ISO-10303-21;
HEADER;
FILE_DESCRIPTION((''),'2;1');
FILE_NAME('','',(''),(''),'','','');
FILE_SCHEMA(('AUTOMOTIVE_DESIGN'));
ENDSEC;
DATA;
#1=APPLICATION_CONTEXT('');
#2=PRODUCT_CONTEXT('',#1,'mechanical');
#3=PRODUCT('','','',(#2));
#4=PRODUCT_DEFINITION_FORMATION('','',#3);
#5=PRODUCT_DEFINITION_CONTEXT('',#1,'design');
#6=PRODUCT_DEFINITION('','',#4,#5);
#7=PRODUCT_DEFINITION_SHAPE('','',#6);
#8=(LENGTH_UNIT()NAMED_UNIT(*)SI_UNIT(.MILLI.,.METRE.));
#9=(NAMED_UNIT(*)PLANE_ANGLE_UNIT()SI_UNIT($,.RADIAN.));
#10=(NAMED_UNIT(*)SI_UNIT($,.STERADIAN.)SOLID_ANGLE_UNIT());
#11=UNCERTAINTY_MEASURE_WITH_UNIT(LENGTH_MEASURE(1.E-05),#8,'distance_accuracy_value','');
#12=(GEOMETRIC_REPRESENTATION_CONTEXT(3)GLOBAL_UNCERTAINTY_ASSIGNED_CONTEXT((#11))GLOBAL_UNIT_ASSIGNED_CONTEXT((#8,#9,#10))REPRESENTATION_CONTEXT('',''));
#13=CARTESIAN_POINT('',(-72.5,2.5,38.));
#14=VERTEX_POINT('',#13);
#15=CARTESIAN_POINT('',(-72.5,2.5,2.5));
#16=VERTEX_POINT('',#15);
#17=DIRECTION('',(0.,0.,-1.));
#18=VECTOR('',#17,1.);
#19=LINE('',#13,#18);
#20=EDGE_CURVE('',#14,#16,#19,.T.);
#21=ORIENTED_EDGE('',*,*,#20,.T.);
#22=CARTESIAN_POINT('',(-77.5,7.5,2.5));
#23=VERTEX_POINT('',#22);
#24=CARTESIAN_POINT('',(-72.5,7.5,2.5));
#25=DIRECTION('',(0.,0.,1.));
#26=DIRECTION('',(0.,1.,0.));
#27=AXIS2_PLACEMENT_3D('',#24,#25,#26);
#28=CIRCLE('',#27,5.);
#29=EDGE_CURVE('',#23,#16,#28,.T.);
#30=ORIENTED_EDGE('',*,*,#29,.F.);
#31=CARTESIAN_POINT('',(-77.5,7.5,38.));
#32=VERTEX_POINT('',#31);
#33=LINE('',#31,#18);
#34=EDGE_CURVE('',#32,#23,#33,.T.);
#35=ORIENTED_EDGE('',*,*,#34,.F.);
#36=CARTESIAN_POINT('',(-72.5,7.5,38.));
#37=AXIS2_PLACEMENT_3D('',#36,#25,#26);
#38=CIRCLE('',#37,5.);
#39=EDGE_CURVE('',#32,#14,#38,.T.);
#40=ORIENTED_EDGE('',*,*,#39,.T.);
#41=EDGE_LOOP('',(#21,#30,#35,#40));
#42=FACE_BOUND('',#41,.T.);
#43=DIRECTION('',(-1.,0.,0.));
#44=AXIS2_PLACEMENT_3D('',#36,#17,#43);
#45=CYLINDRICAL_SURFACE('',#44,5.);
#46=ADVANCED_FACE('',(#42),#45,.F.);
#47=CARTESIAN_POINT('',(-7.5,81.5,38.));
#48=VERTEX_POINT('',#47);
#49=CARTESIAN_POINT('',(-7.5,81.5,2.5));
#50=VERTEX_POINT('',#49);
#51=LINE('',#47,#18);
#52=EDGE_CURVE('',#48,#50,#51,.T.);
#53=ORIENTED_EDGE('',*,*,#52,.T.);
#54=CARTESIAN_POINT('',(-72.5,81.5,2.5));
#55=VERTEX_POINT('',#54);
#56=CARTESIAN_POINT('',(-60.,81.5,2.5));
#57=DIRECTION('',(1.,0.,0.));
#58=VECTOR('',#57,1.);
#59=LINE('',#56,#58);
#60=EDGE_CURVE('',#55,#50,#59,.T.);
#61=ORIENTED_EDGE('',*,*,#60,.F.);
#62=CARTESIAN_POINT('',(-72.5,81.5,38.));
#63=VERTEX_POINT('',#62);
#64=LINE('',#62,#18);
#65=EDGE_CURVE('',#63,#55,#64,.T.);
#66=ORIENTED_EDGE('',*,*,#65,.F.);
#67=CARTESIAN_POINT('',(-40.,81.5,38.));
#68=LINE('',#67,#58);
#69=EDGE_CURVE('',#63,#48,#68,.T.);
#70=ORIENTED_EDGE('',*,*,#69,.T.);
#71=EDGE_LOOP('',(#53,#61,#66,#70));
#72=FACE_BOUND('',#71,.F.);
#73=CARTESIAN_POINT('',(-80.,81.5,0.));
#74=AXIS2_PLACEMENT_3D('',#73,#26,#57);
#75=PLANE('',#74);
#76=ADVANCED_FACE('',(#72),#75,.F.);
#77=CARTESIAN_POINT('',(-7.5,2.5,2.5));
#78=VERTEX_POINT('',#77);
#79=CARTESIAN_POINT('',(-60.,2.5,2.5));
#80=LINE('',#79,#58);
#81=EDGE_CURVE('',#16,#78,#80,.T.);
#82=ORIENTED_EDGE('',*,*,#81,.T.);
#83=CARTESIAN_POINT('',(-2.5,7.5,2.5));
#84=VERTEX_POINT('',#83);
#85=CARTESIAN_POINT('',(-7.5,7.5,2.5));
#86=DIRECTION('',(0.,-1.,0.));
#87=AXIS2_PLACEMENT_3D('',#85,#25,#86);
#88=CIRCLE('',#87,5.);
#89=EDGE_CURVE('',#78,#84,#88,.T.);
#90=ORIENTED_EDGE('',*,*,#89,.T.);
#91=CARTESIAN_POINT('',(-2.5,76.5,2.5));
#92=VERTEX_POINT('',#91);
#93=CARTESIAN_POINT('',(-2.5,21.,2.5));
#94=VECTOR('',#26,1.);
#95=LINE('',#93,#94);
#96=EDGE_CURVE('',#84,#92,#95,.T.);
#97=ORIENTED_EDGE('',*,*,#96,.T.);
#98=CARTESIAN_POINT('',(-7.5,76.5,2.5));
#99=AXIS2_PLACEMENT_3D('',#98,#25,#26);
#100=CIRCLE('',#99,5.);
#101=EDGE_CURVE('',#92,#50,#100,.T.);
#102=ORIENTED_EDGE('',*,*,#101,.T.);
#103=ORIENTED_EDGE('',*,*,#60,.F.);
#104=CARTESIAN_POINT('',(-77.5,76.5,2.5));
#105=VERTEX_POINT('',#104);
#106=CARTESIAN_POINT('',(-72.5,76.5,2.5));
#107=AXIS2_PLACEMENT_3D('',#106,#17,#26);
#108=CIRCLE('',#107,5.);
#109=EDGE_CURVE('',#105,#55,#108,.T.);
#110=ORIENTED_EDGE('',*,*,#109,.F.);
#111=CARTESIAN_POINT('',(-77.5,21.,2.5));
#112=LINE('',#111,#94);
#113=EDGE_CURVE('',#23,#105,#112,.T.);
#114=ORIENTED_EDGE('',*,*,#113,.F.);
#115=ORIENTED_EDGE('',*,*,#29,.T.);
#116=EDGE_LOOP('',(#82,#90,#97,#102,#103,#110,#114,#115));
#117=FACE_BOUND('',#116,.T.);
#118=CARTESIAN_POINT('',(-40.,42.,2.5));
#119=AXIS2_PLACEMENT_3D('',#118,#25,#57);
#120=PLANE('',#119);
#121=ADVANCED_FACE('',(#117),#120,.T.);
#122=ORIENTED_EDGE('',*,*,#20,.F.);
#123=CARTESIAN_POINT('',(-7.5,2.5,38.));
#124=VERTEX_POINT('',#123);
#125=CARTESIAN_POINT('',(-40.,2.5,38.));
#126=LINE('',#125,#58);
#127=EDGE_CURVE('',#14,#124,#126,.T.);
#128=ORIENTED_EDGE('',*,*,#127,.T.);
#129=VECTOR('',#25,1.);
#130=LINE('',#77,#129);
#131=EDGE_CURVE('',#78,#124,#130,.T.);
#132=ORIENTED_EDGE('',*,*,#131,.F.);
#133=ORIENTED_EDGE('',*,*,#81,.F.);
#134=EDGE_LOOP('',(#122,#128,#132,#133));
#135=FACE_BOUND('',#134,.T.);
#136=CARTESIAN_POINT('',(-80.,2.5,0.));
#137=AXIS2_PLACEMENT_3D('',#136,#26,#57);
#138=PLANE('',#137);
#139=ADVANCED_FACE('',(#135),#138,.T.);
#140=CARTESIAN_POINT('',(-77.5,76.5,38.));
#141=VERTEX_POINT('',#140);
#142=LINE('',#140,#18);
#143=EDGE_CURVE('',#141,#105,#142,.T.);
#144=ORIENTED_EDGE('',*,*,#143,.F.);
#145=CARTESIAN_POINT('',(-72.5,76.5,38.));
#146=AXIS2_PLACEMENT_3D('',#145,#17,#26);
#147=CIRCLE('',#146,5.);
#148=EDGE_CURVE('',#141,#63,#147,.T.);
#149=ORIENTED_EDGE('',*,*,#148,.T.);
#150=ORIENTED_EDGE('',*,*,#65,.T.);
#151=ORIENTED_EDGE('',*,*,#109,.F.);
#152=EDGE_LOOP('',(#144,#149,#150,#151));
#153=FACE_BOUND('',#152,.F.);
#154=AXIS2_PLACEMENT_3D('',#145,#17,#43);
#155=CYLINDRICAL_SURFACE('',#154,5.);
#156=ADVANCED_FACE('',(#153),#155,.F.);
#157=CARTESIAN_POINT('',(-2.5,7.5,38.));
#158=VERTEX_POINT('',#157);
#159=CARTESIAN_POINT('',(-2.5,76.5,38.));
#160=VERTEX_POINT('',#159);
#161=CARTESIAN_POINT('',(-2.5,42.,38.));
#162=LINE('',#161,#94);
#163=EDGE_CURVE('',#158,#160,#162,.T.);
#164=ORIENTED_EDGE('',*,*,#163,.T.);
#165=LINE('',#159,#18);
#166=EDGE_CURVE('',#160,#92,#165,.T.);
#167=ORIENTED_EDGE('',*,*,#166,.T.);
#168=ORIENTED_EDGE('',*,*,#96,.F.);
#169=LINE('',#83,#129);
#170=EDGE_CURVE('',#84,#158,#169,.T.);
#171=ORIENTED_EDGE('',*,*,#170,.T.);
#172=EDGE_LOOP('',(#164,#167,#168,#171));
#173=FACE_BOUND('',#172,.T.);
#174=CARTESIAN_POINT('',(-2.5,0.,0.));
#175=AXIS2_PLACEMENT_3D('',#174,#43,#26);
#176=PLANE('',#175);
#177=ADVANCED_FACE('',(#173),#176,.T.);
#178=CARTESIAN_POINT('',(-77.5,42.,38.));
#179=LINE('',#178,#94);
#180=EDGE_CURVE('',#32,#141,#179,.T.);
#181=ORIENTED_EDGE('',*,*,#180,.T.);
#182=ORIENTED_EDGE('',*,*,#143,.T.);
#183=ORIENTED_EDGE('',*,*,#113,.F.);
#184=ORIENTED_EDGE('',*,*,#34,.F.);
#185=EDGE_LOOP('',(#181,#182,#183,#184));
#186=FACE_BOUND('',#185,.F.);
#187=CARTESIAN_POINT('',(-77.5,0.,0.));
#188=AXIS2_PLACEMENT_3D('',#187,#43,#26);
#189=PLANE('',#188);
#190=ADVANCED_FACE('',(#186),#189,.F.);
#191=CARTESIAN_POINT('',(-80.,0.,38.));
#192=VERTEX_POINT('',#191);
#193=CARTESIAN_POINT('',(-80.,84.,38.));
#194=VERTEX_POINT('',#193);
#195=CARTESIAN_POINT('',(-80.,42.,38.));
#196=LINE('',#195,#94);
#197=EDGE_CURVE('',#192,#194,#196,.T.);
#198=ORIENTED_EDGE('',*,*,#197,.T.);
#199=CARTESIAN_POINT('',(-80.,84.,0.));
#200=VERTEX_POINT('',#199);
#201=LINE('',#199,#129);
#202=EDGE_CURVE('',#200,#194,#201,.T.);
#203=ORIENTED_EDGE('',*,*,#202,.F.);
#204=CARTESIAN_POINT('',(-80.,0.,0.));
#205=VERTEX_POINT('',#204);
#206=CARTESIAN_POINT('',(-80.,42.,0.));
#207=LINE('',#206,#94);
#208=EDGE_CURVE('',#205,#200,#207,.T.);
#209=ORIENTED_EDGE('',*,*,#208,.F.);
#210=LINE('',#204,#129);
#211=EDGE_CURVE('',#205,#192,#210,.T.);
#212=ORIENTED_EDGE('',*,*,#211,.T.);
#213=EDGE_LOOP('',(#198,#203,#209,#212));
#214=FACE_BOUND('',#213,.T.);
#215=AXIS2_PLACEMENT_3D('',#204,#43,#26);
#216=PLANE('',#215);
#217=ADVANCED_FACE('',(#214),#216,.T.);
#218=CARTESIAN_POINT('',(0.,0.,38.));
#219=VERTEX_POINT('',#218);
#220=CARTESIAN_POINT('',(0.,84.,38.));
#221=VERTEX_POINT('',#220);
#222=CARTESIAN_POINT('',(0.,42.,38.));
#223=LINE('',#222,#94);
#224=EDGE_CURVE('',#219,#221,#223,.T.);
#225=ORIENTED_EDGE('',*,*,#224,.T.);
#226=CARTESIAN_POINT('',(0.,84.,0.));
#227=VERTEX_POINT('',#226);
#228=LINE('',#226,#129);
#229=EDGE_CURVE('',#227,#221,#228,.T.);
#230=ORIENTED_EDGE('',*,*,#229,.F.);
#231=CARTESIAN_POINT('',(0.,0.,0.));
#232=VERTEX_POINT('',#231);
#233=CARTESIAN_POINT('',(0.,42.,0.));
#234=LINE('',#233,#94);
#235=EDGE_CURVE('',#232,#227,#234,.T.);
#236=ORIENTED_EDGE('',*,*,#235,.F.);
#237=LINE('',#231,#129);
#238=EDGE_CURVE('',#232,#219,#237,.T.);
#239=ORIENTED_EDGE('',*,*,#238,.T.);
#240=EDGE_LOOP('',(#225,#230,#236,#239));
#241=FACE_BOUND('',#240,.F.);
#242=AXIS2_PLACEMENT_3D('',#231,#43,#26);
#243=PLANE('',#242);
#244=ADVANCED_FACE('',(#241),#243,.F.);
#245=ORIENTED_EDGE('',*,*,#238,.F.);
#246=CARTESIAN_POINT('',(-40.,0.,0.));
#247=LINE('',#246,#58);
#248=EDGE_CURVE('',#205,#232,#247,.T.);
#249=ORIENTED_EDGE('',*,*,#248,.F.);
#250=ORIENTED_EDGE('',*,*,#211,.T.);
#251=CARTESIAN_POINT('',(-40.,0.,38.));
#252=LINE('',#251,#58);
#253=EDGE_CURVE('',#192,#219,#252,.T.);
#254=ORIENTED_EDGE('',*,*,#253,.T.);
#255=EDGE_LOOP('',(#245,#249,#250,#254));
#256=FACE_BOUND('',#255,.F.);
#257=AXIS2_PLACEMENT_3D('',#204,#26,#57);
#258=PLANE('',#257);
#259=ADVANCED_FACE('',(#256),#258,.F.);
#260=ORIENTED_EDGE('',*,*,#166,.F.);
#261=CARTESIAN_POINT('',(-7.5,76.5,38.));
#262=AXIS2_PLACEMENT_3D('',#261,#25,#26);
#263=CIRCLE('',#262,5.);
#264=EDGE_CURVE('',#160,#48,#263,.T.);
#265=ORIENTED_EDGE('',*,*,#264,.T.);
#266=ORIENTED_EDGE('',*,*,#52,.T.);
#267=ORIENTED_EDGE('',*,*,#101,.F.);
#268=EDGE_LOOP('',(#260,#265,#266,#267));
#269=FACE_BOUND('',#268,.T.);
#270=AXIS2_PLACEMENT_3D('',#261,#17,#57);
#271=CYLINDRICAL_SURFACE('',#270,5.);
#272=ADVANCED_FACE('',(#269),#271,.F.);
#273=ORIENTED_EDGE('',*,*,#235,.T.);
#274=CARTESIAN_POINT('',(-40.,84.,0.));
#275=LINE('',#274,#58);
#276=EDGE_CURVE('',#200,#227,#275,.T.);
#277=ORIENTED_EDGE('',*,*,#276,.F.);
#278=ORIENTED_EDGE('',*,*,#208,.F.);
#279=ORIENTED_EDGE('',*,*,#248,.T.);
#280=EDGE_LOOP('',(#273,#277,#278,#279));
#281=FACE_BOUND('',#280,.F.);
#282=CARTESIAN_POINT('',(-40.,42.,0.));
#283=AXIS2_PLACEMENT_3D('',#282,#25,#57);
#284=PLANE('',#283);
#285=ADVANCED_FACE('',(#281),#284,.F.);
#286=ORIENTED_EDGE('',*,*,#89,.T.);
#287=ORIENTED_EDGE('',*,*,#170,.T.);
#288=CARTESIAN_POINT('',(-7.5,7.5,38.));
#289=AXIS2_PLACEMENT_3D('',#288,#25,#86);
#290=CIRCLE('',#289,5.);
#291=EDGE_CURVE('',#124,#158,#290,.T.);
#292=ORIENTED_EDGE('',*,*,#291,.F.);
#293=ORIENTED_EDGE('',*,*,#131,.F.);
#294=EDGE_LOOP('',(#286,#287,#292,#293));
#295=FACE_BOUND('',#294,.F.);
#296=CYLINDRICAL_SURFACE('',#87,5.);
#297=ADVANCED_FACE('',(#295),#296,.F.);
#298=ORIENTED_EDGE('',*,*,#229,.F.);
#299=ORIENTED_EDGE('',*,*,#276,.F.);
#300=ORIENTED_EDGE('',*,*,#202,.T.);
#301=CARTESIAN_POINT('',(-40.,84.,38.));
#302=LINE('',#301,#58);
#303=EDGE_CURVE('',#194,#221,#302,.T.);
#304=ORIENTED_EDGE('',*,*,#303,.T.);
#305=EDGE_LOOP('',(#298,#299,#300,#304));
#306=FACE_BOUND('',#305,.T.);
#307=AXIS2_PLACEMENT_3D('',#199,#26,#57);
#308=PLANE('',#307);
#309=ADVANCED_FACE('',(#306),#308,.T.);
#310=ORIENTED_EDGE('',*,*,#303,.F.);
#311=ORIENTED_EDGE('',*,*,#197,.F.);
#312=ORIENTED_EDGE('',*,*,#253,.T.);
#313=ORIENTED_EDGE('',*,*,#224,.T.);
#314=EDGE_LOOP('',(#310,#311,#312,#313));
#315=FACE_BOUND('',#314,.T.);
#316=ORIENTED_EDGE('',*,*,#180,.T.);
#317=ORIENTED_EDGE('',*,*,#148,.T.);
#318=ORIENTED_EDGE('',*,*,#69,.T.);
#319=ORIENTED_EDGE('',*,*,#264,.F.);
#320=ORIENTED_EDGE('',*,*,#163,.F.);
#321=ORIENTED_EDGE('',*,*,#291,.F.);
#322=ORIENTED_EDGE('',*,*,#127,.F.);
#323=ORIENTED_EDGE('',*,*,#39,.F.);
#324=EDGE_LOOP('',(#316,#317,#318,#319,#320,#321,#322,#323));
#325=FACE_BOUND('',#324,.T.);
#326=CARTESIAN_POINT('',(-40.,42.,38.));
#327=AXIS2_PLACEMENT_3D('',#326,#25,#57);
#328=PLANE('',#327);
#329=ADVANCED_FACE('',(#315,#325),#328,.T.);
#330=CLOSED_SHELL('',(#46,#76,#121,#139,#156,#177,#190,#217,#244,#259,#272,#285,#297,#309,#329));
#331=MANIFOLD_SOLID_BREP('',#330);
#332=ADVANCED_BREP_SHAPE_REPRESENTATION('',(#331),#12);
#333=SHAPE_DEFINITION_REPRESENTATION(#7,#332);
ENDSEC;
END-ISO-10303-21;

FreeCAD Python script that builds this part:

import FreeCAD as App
import Part
import Sketcher
Q = App.Units.Quantity


def edges_at(feature, points):
    """Names of the edges that pass closest to the given points."""
    edges = feature.Shape.Edges
    near = lambda p: min(range(len(edges)), key=lambda i: edges[i].distToShape(Part.Vertex(*p))[0])
    return sorted({f"Edge{near(p) + 1}" for p in points})


def faces_at(feature, points):
    """Names of the faces that lie closest to the given points."""
    faces = feature.Shape.Faces
    near = lambda p: min(range(len(faces)), key=lambda i: faces[i].distToShape(Part.Vertex(*p))[0])
    return sorted({f"Face{near(p) + 1}" for p in points})

doc = App.newDocument("Part")
body = doc.addObject("PartDesign::Body", "Body")

sketch1 = body.newObject("Sketcher::SketchObject", "Sketch")
sketch1.AttachmentSupport = (doc.getObject("XY_Plane"), [""])
sketch1.MapMode = "FlatFace"
sketch1.addGeometry([
    Part.LineSegment(App.Vector(-80, 84, 0), App.Vector(-80, 0, 0)),
    Part.LineSegment(App.Vector(-80, 0, 0), App.Vector(0, 0, 0)),
    Part.LineSegment(App.Vector(0, 0, 0), App.Vector(0, 84, 0)),
    Part.LineSegment(App.Vector(0, 84, 0), App.Vector(-80, 84, 0)),
], False)
sketch1.addConstraint([
    Sketcher.Constraint("Coincident", 0, 2, 1, 1),
    Sketcher.Constraint("Coincident", 1, 2, 2, 1),
    Sketcher.Constraint("Coincident", 2, 2, 3, 1),
    Sketcher.Constraint("Coincident", 3, 2, 0, 1),
    Sketcher.Constraint("Vertical", 0),
    Sketcher.Constraint("Horizontal", 1),
    Sketcher.Constraint("Vertical", 2),
    Sketcher.Constraint("Horizontal", 3),
    Sketcher.Constraint("Coincident", 1, 2, -1, 1),
    Sketcher.Constraint("DistanceX", 1, 1, 1, 2, Q("80 mm")),
    Sketcher.Constraint("DistanceY", 0, 2, 0, 1, Q("84 mm")),
])
pad1 = body.newObject("PartDesign::Pad", "Pad")
pad1.Profile = sketch1
pad1.Length = 38
doc.recompute()

thickness = body.newObject("PartDesign::Thickness", "Thickness")
thickness.Base = (pad1, faces_at(pad1, [(-40, 42, 38)]))
thickness.Value = 2.5
thickness.Reversed = True
thickness.Join = "Arc"
doc.recompute()

fillet = body.newObject("PartDesign::Fillet", "Fillet")
fillet.Base = (thickness, edges_at(thickness, [
    (-77.5, 81.5, 20.25),
    (-2.5, 81.5, 20.25),
    (-2.5, 2.5, 20.25),
    (-77.5, 2.5, 20.25),
]))
fillet.Radius = 5

doc.recompute()
